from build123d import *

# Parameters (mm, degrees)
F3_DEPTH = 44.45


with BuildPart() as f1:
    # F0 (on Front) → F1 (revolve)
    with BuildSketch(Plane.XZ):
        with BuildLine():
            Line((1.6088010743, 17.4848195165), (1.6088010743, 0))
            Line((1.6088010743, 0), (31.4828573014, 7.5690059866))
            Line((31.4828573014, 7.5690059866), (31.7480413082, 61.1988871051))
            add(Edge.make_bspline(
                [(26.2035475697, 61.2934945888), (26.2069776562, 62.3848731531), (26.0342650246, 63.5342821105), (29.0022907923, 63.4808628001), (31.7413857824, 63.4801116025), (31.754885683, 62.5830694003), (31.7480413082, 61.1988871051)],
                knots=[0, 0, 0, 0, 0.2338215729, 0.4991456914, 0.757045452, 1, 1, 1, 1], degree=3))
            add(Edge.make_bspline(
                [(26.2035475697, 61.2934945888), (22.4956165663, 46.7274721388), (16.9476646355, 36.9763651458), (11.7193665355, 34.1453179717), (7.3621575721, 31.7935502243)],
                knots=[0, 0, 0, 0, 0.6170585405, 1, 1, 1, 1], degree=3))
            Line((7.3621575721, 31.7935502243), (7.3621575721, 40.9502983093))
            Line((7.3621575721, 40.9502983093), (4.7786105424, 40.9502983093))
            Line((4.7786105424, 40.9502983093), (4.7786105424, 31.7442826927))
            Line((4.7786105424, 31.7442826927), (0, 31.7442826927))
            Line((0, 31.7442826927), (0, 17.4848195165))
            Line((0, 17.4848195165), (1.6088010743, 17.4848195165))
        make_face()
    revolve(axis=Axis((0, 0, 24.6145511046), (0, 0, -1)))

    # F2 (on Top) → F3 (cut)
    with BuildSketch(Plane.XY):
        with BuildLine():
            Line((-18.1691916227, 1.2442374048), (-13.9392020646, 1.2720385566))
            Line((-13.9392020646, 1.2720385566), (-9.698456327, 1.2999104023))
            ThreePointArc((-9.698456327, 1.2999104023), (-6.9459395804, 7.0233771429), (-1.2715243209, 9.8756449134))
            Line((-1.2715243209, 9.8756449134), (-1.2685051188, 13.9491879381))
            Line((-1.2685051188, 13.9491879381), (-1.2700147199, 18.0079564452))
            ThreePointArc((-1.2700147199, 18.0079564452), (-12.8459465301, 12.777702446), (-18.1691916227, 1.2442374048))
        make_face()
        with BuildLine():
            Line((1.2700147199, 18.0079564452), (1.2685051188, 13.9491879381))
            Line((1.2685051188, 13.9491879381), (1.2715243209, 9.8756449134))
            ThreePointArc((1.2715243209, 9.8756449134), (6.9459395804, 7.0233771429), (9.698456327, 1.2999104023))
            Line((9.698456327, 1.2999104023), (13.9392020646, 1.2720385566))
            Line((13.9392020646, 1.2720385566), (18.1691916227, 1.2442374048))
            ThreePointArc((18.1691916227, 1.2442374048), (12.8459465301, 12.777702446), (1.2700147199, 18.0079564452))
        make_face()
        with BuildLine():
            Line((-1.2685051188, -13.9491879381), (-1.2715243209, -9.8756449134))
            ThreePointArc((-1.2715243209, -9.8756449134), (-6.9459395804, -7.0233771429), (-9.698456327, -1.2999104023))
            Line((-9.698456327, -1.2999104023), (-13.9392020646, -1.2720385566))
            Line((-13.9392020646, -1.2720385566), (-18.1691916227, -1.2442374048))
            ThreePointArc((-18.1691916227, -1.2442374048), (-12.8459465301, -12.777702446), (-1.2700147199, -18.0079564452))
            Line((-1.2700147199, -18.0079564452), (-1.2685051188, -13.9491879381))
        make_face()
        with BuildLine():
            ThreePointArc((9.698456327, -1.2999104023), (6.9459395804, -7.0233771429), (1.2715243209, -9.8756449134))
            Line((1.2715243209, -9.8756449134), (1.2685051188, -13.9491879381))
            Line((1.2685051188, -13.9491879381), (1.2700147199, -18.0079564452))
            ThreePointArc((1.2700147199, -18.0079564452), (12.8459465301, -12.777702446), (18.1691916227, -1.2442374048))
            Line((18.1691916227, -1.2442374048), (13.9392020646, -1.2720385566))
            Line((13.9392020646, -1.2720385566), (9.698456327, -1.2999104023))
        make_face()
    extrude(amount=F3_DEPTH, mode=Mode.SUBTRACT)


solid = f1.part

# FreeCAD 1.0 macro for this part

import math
import FreeCAD as App
import Part
import Sketcher

V = App.Vector
Q = App.Units.Quantity

doc = App.newDocument("Part")
params = doc.addObject("Spreadsheet::Sheet", "Params")
for row, (alias, value) in enumerate([
    ("revolution_angle", "360 deg"),
    ("pocket1_length", "1.75 in"),
], start=1):
    params.set(f"A{row}", alias)
    params.set(f"B{row}", "=" + value)
    params.setAlias(f"B{row}", alias)

body = doc.addObject("PartDesign::Body", "Body")

# Sketch on XZ plane
sketch1 = body.newObject("Sketcher::SketchObject", "Sketch")
sketch1.AttachmentSupport = (doc.getObject("XZ_Plane"), [""])
sketch1.MapMode = "FlatFace"
sketch1.addGeometry([
    Part.LineSegment(V(1.608801, 17.48482, 0), V(1.608801, 0, 0)),  # 0
    Part.LineSegment(V(1.608801, 0, 0), V(31.482857, 7.569006, 0)),  # 1
    Part.LineSegment(V(31.482857, 7.569006, 0), V(31.748041, 61.198887, 0)),  # 2
    Part.BSplineCurve([V(26.203548, 61.293495, 0), V(26.206978, 62.384873, 0), V(26.034265, 63.534282, 0), V(29.002291, 63.480863, 0), V(31.741386, 63.480112, 0), V(31.754886, 62.583069, 0), V(31.748041, 61.198887, 0)], [4, 1, 1, 1, 4], [0, 0.233821573, 0.499145691, 0.757045452, 1], False, 3, [1, 1, 1, 1, 1, 1, 1], False),  # 3
    Part.BSplineCurve([V(26.203548, 61.293495, 0), V(22.495617, 46.727472, 0), V(16.947665, 36.976365, 0), V(11.719367, 34.145318, 0), V(7.362158, 31.79355, 0)], [4, 1, 4], [0, 0.61705854, 1], False, 3, [1, 1, 1, 1, 1], False),  # 4
    Part.LineSegment(V(7.362158, 31.79355, 0), V(7.362158, 40.950298, 0)),  # 5
    Part.LineSegment(V(7.362158, 40.950298, 0), V(4.778611, 40.950298, 0)),  # 6
    Part.LineSegment(V(4.778611, 40.950298, 0), V(4.778611, 31.744283, 0)),  # 7
    Part.LineSegment(V(4.778611, 31.744283, 0), V(0, 31.744283, 0)),  # 8
    Part.LineSegment(V(0, 31.744283, 0), V(0, 17.48482, 0)),  # 9
    Part.LineSegment(V(0, 17.48482, 0), V(1.608801, 17.48482, 0)),  # 10
], False)
sketch1.addConstraint([
    Sketcher.Constraint("Block", 3),
    Sketcher.Constraint("Block", 4),
    Sketcher.Constraint("Coincident", 0, 2, 1, 1),
    Sketcher.Constraint("Coincident", 1, 2, 2, 1),
    Sketcher.Constraint("Coincident", 2, 2, 3, 2),
    Sketcher.Constraint("Coincident", 4, 2, 5, 1),
    Sketcher.Constraint("Coincident", 5, 2, 6, 1),
    Sketcher.Constraint("Coincident", 6, 2, 7, 1),
    Sketcher.Constraint("Coincident", 7, 2, 8, 1),
    Sketcher.Constraint("Coincident", 8, 2, 9, 1),
    Sketcher.Constraint("Coincident", 9, 2, 10, 1),
    Sketcher.Constraint("Coincident", 10, 2, 0, 1),
    Sketcher.Constraint("Vertical", 0),
    Sketcher.Constraint("Vertical", 5),
    Sketcher.Constraint("Horizontal", 6),
    Sketcher.Constraint("Vertical", 7),
    Sketcher.Constraint("Horizontal", 8),
    Sketcher.Constraint("Vertical", 9),
    Sketcher.Constraint("Horizontal", 10),
    Sketcher.Constraint("PointOnObject", 0, 2, -1),
    Sketcher.Constraint("PointOnObject", 8, 2, -2),
    Sketcher.Constraint("DistanceX", 10, 1, 10, 2, Q("1.608801 mm")),
    Sketcher.Constraint("Distance", 1, Q("30.817999 mm")),
    Sketcher.Constraint("DistanceX", 8, 2, 8, 1, Q("4.778611 mm")),
    Sketcher.Constraint("DistanceY", 0, 2, 0, 1, Q("17.48482 mm")),
    Sketcher.Constraint("DistanceY", 5, 1, 5, 2, Q("9.156748 mm")),
    Sketcher.Constraint("DistanceX", 5, 2, 1, 2, Q("24.1207 mm")),
    Sketcher.Constraint("DistanceY", 7, 2, 7, 1, Q("9.206016 mm")),
])
revolution = body.newObject("PartDesign::Revolution", "Revolution")
revolution.Profile = sketch1
revolution.ReferenceAxis = (sketch1, ["V_Axis"])
revolution.setExpression("Angle", "Params.revolution_angle")

# Sketch on XY plane
sketch2 = body.newObject("Sketcher::SketchObject", "Sketch001")
sketch2.AttachmentSupport = (doc.getObject("XY_Plane"), [""])
sketch2.MapMode = "FlatFace"
sketch2.addGeometry([
    Part.LineSegment(V(-18.169192, 1.244237, 0), V(-13.939202, 1.272039, 0)),  # 0
    Part.LineSegment(V(-13.939202, 1.272039, 0), V(-9.698456, 1.29991, 0)),  # 1
    Part.ArcOfCircle(Part.Circle(V(0.076953, 0.122343, 0), V(0, 0, 1), 9.84608), math.radians(97.871725), math.radians(173.131122)),  # 2
    Part.LineSegment(V(-1.271524, 9.875645, 0), V(-1.268505, 13.949188, 0)),  # 3
    Part.LineSegment(V(-1.268505, 13.949188, 0), V(-1.270015, 18.007956, 0)),  # 4
    Part.ArcOfCircle(Part.Circle(V(-0.046714, -0.124953, 0), V(0, 0, 1), 18.174127), math.radians(93.859498), math.radians(175.679394)),  # 5
    Part.LineSegment(V(1.270015, 18.007956, 0), V(1.268505, 13.949188, 0)),  # 6
    Part.LineSegment(V(1.268505, 13.949188, 0), V(1.271524, 9.875645, 0)),  # 7
    Part.ArcOfCircle(Part.Circle(V(-0.076953, 0.122343, 0), V(0, 0, 1), 9.84608), math.radians(6.868878), math.radians(82.128275)),  # 8
    Part.LineSegment(V(9.698456, 1.29991, 0), V(13.939202, 1.272039, 0)),  # 9
    Part.LineSegment(V(13.939202, 1.272039, 0), V(18.169192, 1.244237, 0)),  # 10
    Part.ArcOfCircle(Part.Circle(V(0.046714, -0.124953, 0), V(0, 0, 1), 18.174127), math.radians(4.320606), math.radians(86.140502)),  # 11
    Part.LineSegment(V(-1.268505, -13.949188, 0), V(-1.271524, -9.875645, 0)),  # 12
    Part.ArcOfCircle(Part.Circle(V(0.076953, -0.122343, 0), V(0, 0, 1), 9.84608), math.radians(-173.131122), math.radians(-97.871725)),  # 13
    Part.LineSegment(V(-9.698456, -1.29991, 0), V(-13.939202, -1.272039, 0)),  # 14
    Part.LineSegment(V(-13.939202, -1.272039, 0), V(-18.169192, -1.244237, 0)),  # 15
    Part.ArcOfCircle(Part.Circle(V(-0.046714, 0.124953, 0), V(0, 0, 1), 18.174127), math.radians(-175.679394), math.radians(-93.859498)),  # 16
    Part.LineSegment(V(-1.270015, -18.007956, 0), V(-1.268505, -13.949188, 0)),  # 17
    Part.ArcOfCircle(Part.Circle(V(-0.076953, -0.122343, 0), V(0, 0, 1), 9.84608), math.radians(-82.128275), math.radians(-6.868878)),  # 18
    Part.LineSegment(V(1.271524, -9.875645, 0), V(1.268505, -13.949188, 0)),  # 19
    Part.LineSegment(V(1.268505, -13.949188, 0), V(1.270015, -18.007956, 0)),  # 20
    Part.ArcOfCircle(Part.Circle(V(0.046714, 0.124953, 0), V(0, 0, 1), 18.174127), math.radians(-86.140502), math.radians(-4.320606)),  # 21
    Part.LineSegment(V(18.169192, -1.244237, 0), V(13.939202, -1.272039, 0)),  # 22
    Part.LineSegment(V(13.939202, -1.272039, 0), V(9.698456, -1.29991, 0)),  # 23
], False)
sketch2.addConstraint([
    Sketcher.Constraint("Coincident", 0, 2, 1, 1),
    Sketcher.Constraint("Coincident", 1, 2, 2, 2),
    Sketcher.Constraint("Coincident", 2, 1, 3, 1),
    Sketcher.Constraint("Coincident", 3, 2, 4, 1),
    Sketcher.Constraint("Coincident", 4, 2, 5, 1),
    Sketcher.Constraint("Coincident", 5, 2, 0, 1),
    Sketcher.Constraint("Coincident", 6, 2, 7, 1),
    Sketcher.Constraint("Coincident", 7, 2, 8, 2),
    Sketcher.Constraint("Coincident", 8, 1, 9, 1),
    Sketcher.Constraint("Coincident", 9, 2, 10, 1),
    Sketcher.Constraint("Coincident", 10, 2, 11, 1),
    Sketcher.Constraint("Coincident", 11, 2, 6, 1),
    Sketcher.Constraint("Coincident", 12, 2, 13, 2),
    Sketcher.Constraint("Coincident", 13, 1, 14, 1),
    Sketcher.Constraint("Coincident", 14, 2, 15, 1),
    Sketcher.Constraint("Coincident", 15, 2, 16, 1),
    Sketcher.Constraint("Coincident", 16, 2, 17, 1),
    Sketcher.Constraint("Coincident", 17, 2, 12, 1),
    Sketcher.Constraint("Coincident", 18, 1, 19, 1),
    Sketcher.Constraint("Coincident", 19, 2, 20, 1),
    Sketcher.Constraint("Coincident", 20, 2, 21, 1),
    Sketcher.Constraint("Coincident", 21, 2, 22, 1),
    Sketcher.Constraint("Coincident", 22, 2, 23, 1),
    Sketcher.Constraint("Coincident", 23, 2, 18, 2),
    Sketcher.Constraint("Radius", 2, Q("9.84608 mm")),
    Sketcher.Constraint("Radius", 8, Q("9.84608 mm")),
    Sketcher.Constraint("Radius", 13, Q("9.84608 mm")),
    Sketcher.Constraint("Radius", 18, Q("9.84608 mm")),
    Sketcher.Constraint("Radius", 5, Q("18.174127 mm")),
    Sketcher.Constraint("Radius", 11, Q("18.174127 mm")),
    Sketcher.Constraint("Radius", 16, Q("18.174127 mm")),
    Sketcher.Constraint("Radius", 21, Q("18.174127 mm")),
    Sketcher.Constraint("DistanceY", 8, 3, 2, 1, Q("9.753302 mm")),
    Sketcher.Constraint("DistanceY", 2, 3, 2, 1, Q("9.753302 mm")),
    Sketcher.Constraint("DistanceX", 4, 2, 16, 3, Q("1.223301 mm")),
    Sketcher.Constraint("DistanceY", 5, 2, 0, 2, Q("0.027801 mm")),
    Sketcher.Constraint("DistanceY", 2, 3, 7, 2, Q("9.753302 mm")),
    Sketcher.Constraint("DistanceY", 10, 2, 9, 2, Q("0.027801 mm")),
    Sketcher.Constraint("DistanceY", 12, 2, 18, 3, Q("9.753302 mm")),
    Sketcher.Constraint("DistanceY", 12, 2, 13, 3, Q("9.753302 mm")),
    Sketcher.Constraint("DistanceY", 14, 2, 15, 2, Q("0.027801 mm")),
    Sketcher.Constraint("DistanceX", 16, 2, 5, 3, Q("1.223301 mm")),
    Sketcher.Constraint("DistanceY", 18, 1, 13, 3, Q("9.753302 mm")),
    Sketcher.Constraint("DistanceY", 22, 2, 21, 2, Q("0.027801 mm")),
    Sketcher.Constraint("Distance", 0, Q("4.230081 mm")),
    Sketcher.Constraint("Distance", 4, Q("4.058769 mm")),
    Sketcher.Constraint("Distance", 6, Q("4.058769 mm")),
    Sketcher.Constraint("Distance", 10, Q("4.230081 mm")),
    Sketcher.Constraint("Distance", 15, Q("4.230081 mm")),
    Sketcher.Constraint("Distance", 17, Q("4.058769 mm")),
    Sketcher.Constraint("Distance", 20, Q("4.058769 mm")),
    Sketcher.Constraint("Distance", 22, Q("4.230081 mm")),
    Sketcher.Constraint("DistanceY", -1, 1, 0, 2, Q("1.272039 mm")),
    Sketcher.Constraint("DistanceY", -1, 1, 1, 2, Q("1.29991 mm")),
    Sketcher.Constraint("DistanceX", 5, 2, -1, 1, Q("18.169192 mm")),
    Sketcher.Constraint("DistanceY", -1, 1, 8, 1, Q("1.29991 mm")),
    Sketcher.Constraint("DistanceY", -1, 1, 9, 2, Q("1.272039 mm")),
    Sketcher.Constraint("DistanceX", -1, 1, 10, 2, Q("18.169192 mm")),
    Sketcher.Constraint("DistanceY", 13, 1, -1, 1, Q("1.29991 mm")),
    Sketcher.Constraint("DistanceY", 14, 2, -1, 1, Q("1.272039 mm")),
    Sketcher.Constraint("DistanceX", 15, 2, -1, 1, Q("18.169192 mm")),
    Sketcher.Constraint("DistanceX", -1, 1, 21, 2, Q("18.169192 mm")),
    Sketcher.Constraint("DistanceY", 22, 2, -1, 1, Q("1.272039 mm")),
    Sketcher.Constraint("DistanceY", 23, 2, -1, 1, Q("1.29991 mm")),
    Sketcher.Constraint("DistanceX", 8, 3, 5, 3, Q("0.030239 mm")),
    Sketcher.Constraint("DistanceX", 11, 3, 2, 3, Q("0.030239 mm")),
    Sketcher.Constraint("DistanceX", 11, 3, 13, 3, Q("0.030239 mm")),
    Sketcher.Constraint("DistanceY", 11, 3, 13, 3, Q("0.00261 mm")),
    Sketcher.Constraint("DistanceY", 5, 3, 13, 3, Q("0.00261 mm")),
    Sketcher.Constraint("DistanceX", 8, 3, 16, 3, Q("0.030239 mm")),
    Sketcher.Constraint("DistanceY", 8, 3, 16, 3, Q("0.00261 mm")),
    Sketcher.Constraint("DistanceX", 18, 3, 5, 3, Q("0.030239 mm")),
    Sketcher.Constraint("DistanceX", 21, 3, 2, 3, Q("0.030239 mm")),
    Sketcher.Constraint("DistanceX", 0, 2, 8, 3, Q("13.862249 mm")),
    Sketcher.Constraint("DistanceX", 2, 1, 3, 2, Q("0.003019 mm")),
    Sketcher.Constraint("DistanceX", 3, 2, 6, 2, Q("2.53701 mm")),
    Sketcher.Constraint("DistanceY", 6, 2, 4, 2, Q("4.058769 mm")),
    Sketcher.Constraint("DistanceX", 16, 2, 17, 2, Q("0.00151 mm")),
    Sketcher.Constraint("DistanceX", 17, 2, 19, 2, Q("2.53701 mm")),
    Sketcher.Constraint("DistanceY", 16, 2, 19, 2, Q("4.058769 mm")),
])
pocket1 = body.newObject("PartDesign::Pocket", "Pocket")
pocket1.Profile = sketch2
pocket1.setExpression("Length", "Params.pocket1_length")
pocket1.Reversed = True

doc.recompute()
